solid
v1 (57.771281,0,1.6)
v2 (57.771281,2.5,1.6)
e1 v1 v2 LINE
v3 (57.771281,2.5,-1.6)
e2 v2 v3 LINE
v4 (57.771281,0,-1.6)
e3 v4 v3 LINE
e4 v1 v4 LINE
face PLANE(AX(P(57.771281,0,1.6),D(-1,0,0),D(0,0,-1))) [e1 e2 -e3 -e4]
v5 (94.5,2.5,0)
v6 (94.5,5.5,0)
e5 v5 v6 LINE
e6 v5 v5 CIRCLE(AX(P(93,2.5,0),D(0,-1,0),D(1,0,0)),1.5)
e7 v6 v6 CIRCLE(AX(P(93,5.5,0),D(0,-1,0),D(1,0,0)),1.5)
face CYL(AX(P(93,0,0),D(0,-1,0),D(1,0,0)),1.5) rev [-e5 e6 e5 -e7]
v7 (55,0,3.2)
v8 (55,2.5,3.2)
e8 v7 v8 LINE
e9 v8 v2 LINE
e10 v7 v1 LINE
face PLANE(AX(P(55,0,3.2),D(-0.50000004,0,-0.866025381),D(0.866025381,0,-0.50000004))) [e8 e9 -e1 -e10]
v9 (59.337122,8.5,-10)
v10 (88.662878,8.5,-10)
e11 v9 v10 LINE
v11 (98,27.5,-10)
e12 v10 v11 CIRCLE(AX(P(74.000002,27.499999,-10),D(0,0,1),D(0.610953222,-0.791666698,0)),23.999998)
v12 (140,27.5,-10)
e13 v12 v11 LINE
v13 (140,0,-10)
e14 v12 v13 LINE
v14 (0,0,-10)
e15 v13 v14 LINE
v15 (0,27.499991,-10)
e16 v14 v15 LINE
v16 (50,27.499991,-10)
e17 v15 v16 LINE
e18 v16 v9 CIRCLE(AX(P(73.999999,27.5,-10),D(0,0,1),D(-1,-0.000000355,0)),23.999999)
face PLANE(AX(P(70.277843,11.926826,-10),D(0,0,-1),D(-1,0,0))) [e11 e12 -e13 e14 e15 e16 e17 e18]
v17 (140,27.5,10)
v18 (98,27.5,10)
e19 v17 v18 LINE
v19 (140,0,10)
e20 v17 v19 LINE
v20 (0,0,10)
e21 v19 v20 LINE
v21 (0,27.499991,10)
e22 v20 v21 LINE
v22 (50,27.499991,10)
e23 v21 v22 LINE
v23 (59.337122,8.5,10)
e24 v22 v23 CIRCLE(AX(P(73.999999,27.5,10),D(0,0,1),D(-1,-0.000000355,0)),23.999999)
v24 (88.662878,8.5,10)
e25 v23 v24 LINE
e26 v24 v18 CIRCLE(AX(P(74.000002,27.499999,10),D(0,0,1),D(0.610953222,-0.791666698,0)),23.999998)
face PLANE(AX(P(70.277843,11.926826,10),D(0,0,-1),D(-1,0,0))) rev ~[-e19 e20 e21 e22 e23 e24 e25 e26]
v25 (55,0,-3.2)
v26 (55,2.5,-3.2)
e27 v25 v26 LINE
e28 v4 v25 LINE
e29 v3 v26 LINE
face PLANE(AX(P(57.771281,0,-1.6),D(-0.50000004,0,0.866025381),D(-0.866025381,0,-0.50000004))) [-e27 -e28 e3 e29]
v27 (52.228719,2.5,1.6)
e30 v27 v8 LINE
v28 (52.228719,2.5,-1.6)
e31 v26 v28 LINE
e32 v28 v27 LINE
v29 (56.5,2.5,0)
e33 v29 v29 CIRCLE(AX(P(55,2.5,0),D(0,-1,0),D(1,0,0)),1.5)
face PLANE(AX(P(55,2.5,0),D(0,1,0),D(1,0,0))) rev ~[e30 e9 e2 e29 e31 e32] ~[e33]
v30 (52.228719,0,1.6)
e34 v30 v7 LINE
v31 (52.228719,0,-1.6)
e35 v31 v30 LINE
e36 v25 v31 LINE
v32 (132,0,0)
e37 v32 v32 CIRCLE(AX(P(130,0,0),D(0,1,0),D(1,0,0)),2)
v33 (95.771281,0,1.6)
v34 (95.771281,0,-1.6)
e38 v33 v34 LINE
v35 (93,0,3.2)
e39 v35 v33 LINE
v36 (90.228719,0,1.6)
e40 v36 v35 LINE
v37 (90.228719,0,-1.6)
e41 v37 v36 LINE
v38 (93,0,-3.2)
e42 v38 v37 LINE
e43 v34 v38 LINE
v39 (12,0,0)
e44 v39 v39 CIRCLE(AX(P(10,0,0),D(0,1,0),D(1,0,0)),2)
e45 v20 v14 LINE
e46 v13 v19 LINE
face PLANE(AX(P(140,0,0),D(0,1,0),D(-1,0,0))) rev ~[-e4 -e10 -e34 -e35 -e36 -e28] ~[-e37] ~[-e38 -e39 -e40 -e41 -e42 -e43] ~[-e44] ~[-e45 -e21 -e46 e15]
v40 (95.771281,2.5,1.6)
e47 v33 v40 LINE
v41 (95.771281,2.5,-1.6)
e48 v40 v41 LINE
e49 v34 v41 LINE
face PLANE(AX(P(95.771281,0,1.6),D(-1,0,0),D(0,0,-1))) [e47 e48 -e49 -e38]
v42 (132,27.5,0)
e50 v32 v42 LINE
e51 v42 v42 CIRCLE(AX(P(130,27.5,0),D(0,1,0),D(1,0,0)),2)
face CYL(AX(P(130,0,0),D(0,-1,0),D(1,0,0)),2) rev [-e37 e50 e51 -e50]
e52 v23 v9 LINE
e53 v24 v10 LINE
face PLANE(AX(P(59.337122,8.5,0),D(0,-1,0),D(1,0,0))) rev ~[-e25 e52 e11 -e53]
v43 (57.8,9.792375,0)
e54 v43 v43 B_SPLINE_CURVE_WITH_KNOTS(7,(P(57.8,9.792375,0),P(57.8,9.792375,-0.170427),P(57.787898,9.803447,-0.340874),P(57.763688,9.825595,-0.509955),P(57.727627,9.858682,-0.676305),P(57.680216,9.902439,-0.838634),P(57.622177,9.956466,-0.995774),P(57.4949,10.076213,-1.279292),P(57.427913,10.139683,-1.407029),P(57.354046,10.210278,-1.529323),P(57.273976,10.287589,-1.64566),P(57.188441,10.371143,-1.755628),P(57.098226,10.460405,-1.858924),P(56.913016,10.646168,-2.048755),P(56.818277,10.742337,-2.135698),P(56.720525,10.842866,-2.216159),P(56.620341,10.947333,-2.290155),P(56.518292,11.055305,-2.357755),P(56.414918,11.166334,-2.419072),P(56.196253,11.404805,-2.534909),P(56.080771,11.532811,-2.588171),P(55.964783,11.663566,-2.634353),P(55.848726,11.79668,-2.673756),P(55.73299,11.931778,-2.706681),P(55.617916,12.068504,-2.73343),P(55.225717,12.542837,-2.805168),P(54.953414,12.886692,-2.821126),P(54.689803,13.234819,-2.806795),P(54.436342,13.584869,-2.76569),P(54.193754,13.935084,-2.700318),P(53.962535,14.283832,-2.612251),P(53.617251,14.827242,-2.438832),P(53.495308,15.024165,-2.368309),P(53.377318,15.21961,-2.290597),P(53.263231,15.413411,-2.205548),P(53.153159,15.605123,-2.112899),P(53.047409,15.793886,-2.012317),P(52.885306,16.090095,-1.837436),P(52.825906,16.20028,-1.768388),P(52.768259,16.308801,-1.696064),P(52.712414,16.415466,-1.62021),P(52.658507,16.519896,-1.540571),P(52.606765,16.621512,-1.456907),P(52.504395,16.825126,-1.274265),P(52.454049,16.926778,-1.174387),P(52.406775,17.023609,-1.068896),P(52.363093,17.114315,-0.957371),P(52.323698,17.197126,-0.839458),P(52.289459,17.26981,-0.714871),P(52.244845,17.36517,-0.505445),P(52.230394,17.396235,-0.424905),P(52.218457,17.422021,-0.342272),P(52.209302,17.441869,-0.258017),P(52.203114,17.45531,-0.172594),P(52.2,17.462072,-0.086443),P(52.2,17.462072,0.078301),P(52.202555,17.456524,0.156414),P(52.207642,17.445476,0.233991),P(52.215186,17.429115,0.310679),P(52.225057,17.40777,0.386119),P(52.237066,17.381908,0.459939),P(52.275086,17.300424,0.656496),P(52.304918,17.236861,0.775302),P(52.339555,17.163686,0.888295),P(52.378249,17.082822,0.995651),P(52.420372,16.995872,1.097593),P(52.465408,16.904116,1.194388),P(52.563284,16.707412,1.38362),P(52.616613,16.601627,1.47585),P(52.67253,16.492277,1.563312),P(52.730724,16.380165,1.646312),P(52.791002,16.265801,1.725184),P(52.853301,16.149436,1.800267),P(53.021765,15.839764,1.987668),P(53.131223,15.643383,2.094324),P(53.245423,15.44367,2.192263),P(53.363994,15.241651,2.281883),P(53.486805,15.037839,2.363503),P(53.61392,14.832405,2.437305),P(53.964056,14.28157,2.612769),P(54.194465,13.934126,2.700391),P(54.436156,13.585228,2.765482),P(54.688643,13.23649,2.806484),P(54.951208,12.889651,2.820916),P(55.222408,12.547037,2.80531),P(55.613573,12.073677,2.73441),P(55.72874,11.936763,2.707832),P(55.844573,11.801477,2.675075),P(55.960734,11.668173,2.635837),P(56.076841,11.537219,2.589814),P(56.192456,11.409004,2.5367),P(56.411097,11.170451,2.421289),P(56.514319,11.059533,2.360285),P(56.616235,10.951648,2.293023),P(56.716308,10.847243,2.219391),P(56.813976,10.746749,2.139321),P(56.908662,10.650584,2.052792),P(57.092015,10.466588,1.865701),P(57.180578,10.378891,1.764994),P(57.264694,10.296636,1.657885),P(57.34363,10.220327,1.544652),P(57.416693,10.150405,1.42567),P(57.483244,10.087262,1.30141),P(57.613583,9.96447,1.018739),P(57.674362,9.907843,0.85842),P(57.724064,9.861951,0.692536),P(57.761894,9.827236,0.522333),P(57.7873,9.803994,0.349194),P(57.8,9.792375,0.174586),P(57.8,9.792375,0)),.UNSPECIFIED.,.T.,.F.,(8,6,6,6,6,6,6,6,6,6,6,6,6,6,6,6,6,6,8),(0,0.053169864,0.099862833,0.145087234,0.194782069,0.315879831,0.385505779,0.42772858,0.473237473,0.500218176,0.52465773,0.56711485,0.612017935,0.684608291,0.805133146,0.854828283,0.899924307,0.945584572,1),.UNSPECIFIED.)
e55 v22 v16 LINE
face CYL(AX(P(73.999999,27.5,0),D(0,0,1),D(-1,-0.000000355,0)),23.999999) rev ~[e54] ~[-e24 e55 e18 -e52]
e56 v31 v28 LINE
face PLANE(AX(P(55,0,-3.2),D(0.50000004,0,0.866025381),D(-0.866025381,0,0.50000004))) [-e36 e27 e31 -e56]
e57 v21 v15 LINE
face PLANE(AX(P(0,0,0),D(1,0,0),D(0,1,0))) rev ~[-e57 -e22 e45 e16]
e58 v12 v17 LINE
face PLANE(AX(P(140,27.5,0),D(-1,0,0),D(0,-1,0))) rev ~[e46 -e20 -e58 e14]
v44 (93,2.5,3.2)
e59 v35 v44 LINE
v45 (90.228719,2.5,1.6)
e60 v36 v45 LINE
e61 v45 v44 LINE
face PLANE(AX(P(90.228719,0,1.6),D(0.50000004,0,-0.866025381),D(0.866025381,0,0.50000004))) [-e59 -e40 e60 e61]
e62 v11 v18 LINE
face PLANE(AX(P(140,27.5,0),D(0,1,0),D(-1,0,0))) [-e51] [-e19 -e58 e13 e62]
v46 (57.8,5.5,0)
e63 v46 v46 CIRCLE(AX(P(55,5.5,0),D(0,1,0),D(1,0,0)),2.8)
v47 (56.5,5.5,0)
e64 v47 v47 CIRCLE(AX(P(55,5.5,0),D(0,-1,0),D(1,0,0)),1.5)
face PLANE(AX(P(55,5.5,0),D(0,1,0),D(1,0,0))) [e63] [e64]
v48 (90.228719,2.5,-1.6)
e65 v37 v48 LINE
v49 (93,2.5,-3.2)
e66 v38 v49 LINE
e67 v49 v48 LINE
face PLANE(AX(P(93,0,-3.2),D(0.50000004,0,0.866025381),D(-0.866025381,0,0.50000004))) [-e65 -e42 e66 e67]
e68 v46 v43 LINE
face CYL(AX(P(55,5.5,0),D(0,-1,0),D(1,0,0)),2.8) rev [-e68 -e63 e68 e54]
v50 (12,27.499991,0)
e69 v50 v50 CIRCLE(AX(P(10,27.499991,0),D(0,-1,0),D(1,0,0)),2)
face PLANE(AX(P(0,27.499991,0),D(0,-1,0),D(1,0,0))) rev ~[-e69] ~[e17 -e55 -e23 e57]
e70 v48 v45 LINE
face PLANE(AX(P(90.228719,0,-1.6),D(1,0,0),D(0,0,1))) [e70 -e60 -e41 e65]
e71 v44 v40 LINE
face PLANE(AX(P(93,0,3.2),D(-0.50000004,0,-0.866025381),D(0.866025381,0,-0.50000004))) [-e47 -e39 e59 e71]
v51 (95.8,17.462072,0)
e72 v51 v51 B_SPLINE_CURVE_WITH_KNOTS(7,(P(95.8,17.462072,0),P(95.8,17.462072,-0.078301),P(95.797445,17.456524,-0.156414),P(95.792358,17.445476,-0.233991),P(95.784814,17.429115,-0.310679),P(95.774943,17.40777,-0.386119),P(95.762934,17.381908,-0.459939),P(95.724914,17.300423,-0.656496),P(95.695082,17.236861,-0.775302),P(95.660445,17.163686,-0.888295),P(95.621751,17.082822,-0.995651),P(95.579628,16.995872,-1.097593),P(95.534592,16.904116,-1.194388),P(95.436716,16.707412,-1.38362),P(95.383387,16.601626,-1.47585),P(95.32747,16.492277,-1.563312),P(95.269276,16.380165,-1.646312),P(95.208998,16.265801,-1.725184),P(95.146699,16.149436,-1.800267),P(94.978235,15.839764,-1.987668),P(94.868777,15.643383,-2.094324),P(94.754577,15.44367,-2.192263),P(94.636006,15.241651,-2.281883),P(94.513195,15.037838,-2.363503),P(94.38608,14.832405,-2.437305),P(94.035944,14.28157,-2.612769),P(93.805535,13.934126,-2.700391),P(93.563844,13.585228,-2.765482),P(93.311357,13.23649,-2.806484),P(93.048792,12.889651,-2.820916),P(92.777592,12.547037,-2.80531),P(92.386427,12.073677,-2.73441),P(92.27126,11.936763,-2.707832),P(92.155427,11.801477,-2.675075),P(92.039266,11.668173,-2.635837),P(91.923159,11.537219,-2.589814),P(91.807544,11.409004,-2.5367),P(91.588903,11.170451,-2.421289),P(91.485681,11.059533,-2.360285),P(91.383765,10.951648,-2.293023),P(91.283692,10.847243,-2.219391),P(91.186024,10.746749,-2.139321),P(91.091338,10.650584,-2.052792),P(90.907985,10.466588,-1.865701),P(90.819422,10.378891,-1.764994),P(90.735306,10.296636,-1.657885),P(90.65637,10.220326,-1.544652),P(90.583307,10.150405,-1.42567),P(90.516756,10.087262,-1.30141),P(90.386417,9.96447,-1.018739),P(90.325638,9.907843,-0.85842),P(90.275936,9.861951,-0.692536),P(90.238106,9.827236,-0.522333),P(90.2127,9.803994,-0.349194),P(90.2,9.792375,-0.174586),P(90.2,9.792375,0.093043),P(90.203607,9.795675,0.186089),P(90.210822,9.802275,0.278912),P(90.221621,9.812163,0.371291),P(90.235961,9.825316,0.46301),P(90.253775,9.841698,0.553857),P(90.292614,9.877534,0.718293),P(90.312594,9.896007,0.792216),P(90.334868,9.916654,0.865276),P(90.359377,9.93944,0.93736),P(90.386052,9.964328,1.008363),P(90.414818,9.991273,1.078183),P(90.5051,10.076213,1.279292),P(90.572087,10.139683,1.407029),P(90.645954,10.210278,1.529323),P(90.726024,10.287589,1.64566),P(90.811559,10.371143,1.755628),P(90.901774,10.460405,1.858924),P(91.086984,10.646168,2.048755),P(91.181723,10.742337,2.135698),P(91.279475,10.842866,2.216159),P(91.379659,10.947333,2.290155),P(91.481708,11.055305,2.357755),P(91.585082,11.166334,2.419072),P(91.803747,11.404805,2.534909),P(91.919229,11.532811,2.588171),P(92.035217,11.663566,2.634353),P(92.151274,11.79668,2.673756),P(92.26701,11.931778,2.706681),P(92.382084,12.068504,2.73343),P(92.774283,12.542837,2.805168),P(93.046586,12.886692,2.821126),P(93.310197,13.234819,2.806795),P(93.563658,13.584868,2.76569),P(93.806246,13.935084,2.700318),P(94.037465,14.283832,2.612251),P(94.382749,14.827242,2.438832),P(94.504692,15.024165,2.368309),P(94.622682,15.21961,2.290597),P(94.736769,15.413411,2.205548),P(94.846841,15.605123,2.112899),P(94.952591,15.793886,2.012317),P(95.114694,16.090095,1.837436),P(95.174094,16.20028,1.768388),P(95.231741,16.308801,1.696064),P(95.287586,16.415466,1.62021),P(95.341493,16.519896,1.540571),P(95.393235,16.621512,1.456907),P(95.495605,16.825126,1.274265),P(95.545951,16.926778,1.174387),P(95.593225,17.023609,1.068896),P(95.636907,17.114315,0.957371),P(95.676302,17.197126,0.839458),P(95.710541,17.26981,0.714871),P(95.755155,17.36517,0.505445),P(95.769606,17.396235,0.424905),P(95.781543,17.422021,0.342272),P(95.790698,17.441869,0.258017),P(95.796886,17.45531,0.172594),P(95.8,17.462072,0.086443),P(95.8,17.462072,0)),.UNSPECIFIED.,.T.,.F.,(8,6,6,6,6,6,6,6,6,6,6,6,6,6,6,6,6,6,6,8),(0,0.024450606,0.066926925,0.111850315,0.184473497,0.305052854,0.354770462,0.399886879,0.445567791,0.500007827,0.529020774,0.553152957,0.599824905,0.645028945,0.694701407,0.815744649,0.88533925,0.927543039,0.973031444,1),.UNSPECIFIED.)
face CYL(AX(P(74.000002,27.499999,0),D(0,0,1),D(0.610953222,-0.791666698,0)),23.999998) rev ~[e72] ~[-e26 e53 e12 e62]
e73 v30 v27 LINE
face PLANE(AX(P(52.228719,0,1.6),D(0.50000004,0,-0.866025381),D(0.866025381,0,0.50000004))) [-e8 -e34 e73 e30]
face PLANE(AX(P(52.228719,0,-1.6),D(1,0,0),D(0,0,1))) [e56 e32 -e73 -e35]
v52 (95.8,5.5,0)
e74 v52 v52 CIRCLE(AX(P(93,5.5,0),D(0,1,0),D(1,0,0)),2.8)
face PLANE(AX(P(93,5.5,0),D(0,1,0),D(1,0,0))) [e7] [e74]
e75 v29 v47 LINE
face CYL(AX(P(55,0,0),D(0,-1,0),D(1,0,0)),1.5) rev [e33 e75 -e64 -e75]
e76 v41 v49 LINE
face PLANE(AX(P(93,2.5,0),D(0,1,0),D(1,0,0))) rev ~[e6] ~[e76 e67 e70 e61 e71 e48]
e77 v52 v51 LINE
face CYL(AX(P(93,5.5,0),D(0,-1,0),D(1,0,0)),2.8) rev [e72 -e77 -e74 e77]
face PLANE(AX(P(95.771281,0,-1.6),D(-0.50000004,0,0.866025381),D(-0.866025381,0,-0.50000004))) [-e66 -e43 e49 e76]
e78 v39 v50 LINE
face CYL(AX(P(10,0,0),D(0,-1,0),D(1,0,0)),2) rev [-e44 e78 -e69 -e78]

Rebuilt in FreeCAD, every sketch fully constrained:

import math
import FreeCAD as App
import Part
import Sketcher
Q = App.Units.Quantity


def add_polygon(sketch, points):
    """Adds a closed chain of lines whose ends are joined by coincident constraints."""
    first, n = sketch.GeometryCount, len(points)
    for a, b in zip(points, points[1:] + points[:1]):
        sketch.addGeometry(Part.LineSegment(App.Vector(*a, 0), App.Vector(*b, 0)), False)
    for i in range(n):
        sketch.addConstraint(Sketcher.Constraint("Coincident", first + i, 2, first + (i + 1) % n, 1))

doc = App.newDocument("Part")
body = doc.addObject("PartDesign::Body", "Body")

# Sketch on XY plane
sketch1 = body.newObject("Sketcher::SketchObject", "Sketch")
sketch1.AttachmentSupport = (doc.getObject("XY_Plane"), [""])
sketch1.MapMode = "FlatFace"
add_polygon(sketch1, [(0, -3.2), (2.8, -1.6), (2.8, 1.6), (0, 3.2), (-2.8, 1.6), (-2.8, -1.6)])  # lines 0-5
sketch1.addConstraint(Sketcher.Constraint("Vertical", 1))
sketch1.addConstraint(Sketcher.Constraint("Vertical", 4))
sketch1.addConstraint(Sketcher.Constraint("Symmetric", 0, 2, 3, 2, -1, 1))
sketch1.addConstraint(Sketcher.Constraint("Symmetric", 2, 2, 5, 2, -1, 1))
sketch1.addConstraint(Sketcher.Constraint("PointOnObject", 2, 2, -2))
sketch1.addConstraint(Sketcher.Constraint("Parallel", 2, 5))
sketch1.addConstraint(Sketcher.Constraint("Horizontal", 1, 2, 3, 2))
sketch1.addConstraint(Sketcher.Constraint("Angle", 0, Q("30.000003 deg")))
sketch1.addConstraint(Sketcher.Constraint("DistanceY", 1, 1, 1, 2, 3.2))
sketch1.addConstraint(Sketcher.Constraint("Distance", 0, 3.2))
pad1 = body.newObject("PartDesign::Pad", "Pad")
pad1.Profile = sketch1
pad1.Length = 2.5
body2 = doc.addObject("PartDesign::Body", "Body001")

# Sketch on XY plane
sketch2 = body2.newObject("Sketcher::SketchObject", "Sketch001")
sketch2.AttachmentSupport = (doc.getObject("XY_Plane001"), [""])
sketch2.MapMode = "FlatFace"
sketch2.AttachmentOffset = App.Placement(App.Vector(0, 0, 5.5), App.Rotation())
sketch2.addGeometry(Part.Circle(App.Vector(0, 0, 0), App.Vector(0, 0, 1), 2.8), False)
sketch2.addConstraint(Sketcher.Constraint("Coincident", 0, 3, -1, 1))
sketch2.addConstraint(Sketcher.Constraint("Diameter", 0, 5.6))
pad2 = body2.newObject("PartDesign::Pad", "Pad001")
pad2.Profile = sketch2
pad2.Length = 15
body3 = doc.addObject("PartDesign::Body", "Body002")

# Sketch on XY plane
sketch3 = body3.newObject("Sketcher::SketchObject", "Sketch002")
sketch3.AttachmentSupport = (doc.getObject("XY_Plane002"), [""])
sketch3.MapMode = "FlatFace"
sketch3.addGeometry(Part.Circle(App.Vector(0, 0, 0), App.Vector(0, 0, 1), 1.5), False)
sketch3.addConstraint(Sketcher.Constraint("Coincident", 0, 3, -1, 1))
sketch3.addConstraint(Sketcher.Constraint("Diameter", 0, 3.0))
pad3 = body3.newObject("PartDesign::Pad", "Pad002")
pad3.Profile = sketch3
pad3.Length = 8.5
doc.recompute()

boolean = body3.newObject("PartDesign::Boolean", "Boolean")
boolean.Type = "Fuse"
boolean.addObjects([body])
doc.recompute()

boolean2 = body3.newObject("PartDesign::Boolean", "Boolean001")
boolean2.Type = "Fuse"
boolean2.addObjects([body2])
body4 = doc.addObject("PartDesign::Body", "Body003")
doc.recompute()

body3.Placement = App.Placement(App.Vector(93, 0, 0), App.Rotation(App.Vector(-1, 0, 0), 90))
boolean3 = body4.newObject("PartDesign::Boolean", "Boolean002")
boolean3.Type = "Fuse"
boolean3.addObjects([body3])
body5 = doc.addObject("PartDesign::Body", "Body004")

# Sketch on XY plane
sketch4 = body5.newObject("Sketcher::SketchObject", "Sketch003")
sketch4.AttachmentSupport = (doc.getObject("XY_Plane004"), [""])
sketch4.MapMode = "FlatFace"
add_polygon(sketch4, [(0, -3.2), (2.8, -1.6), (2.8, 1.6), (0, 3.2), (-2.8, 1.6), (-2.8, -1.6)])  # lines 0-5
sketch4.addConstraint(Sketcher.Constraint("Vertical", 1))
sketch4.addConstraint(Sketcher.Constraint("Vertical", 4))
sketch4.addConstraint(Sketcher.Constraint("Symmetric", 0, 2, 3, 2, -1, 1))
sketch4.addConstraint(Sketcher.Constraint("Symmetric", 2, 2, 5, 2, -1, 1))
sketch4.addConstraint(Sketcher.Constraint("PointOnObject", 2, 2, -2))
sketch4.addConstraint(Sketcher.Constraint("Parallel", 2, 5))
sketch4.addConstraint(Sketcher.Constraint("Horizontal", 1, 2, 3, 2))
sketch4.addConstraint(Sketcher.Constraint("Angle", 0, Q("30.000003 deg")))
sketch4.addConstraint(Sketcher.Constraint("DistanceY", 1, 1, 1, 2, 3.2))
sketch4.addConstraint(Sketcher.Constraint("Distance", 0, 3.2))
pad4 = body5.newObject("PartDesign::Pad", "Pad003")
pad4.Profile = sketch4
pad4.Length = 2.5
body6 = doc.addObject("PartDesign::Body", "Body005")

# Sketch on XY plane
sketch5 = body6.newObject("Sketcher::SketchObject", "Sketch004")
sketch5.AttachmentSupport = (doc.getObject("XY_Plane005"), [""])
sketch5.MapMode = "FlatFace"
sketch5.AttachmentOffset = App.Placement(App.Vector(0, 0, 5.5), App.Rotation())
sketch5.addGeometry(Part.Circle(App.Vector(0, 0, 0), App.Vector(0, 0, 1), 2.8), False)
sketch5.addConstraint(Sketcher.Constraint("Coincident", 0, 3, -1, 1))
sketch5.addConstraint(Sketcher.Constraint("Diameter", 0, 5.6))
pad5 = body6.newObject("PartDesign::Pad", "Pad004")
pad5.Profile = sketch5
pad5.Length = 15
body7 = doc.addObject("PartDesign::Body", "Body006")

# Sketch on XY plane
sketch6 = body7.newObject("Sketcher::SketchObject", "Sketch005")
sketch6.AttachmentSupport = (doc.getObject("XY_Plane006"), [""])
sketch6.MapMode = "FlatFace"
sketch6.addGeometry(Part.Circle(App.Vector(0, 0, 0), App.Vector(0, 0, 1), 1.5), False)
sketch6.addConstraint(Sketcher.Constraint("Coincident", 0, 3, -1, 1))
sketch6.addConstraint(Sketcher.Constraint("Diameter", 0, 3.0))
pad6 = body7.newObject("PartDesign::Pad", "Pad005")
pad6.Profile = sketch6
pad6.Length = 8.5
doc.recompute()

boolean4 = body7.newObject("PartDesign::Boolean", "Boolean003")
boolean4.Type = "Fuse"
boolean4.addObjects([body5])
doc.recompute()

boolean5 = body7.newObject("PartDesign::Boolean", "Boolean004")
boolean5.Type = "Fuse"
boolean5.addObjects([body6])
body8 = doc.addObject("PartDesign::Body", "Body007")
body8.AllowCompound = True
doc.recompute()

body7.Placement = App.Placement(App.Vector(55, 0, 0), App.Rotation(App.Vector(-1, 0, 0), 90))
boolean6 = body8.newObject("PartDesign::Boolean", "Boolean005")
boolean6.Type = "Fuse"
boolean6.addObjects([body7])
doc.recompute()

boolean7 = body8.newObject("PartDesign::Boolean", "Boolean006")
boolean7.Type = "Fuse"
boolean7.addObjects([body4])
body9 = doc.addObject("PartDesign::Body", "Body008")

# Sketch on XZ plane
sketch7 = body9.newObject("Sketcher::SketchObject", "Sketch006")
sketch7.AttachmentSupport = (doc.getObject("XZ_Plane008"), [""])
sketch7.MapMode = "FlatFace"
sketch7.addGeometry(Part.Circle(App.Vector(130, 0, 0), App.Vector(0, 0, 1), 2), False)
sketch7.addConstraint(Sketcher.Constraint("PointOnObject", 0, 3, -1))
sketch7.addConstraint(Sketcher.Constraint("Diameter", 0, 4.0))
sketch7.addConstraint(Sketcher.Constraint("DistanceX", -1, 1, 0, 3, 130.0))
pad7 = body9.newObject("PartDesign::Pad", "Pad006")
pad7.Profile = sketch7
pad7.Length = 27.5
pad7.Reversed = True
body10 = doc.addObject("PartDesign::Body", "Body009")
body10.AllowCompound = True

# Sketch on XZ plane
sketch8 = body10.newObject("Sketcher::SketchObject", "Sketch007")
sketch8.AttachmentSupport = (doc.getObject("XZ_Plane009"), [""])
sketch8.MapMode = "FlatFace"
sketch8.addGeometry(Part.Circle(App.Vector(10, 0, 0), App.Vector(0, 0, 1), 2), False)
sketch8.addConstraint(Sketcher.Constraint("PointOnObject", 0, 3, -1))
sketch8.addConstraint(Sketcher.Constraint("Diameter", 0, 4.0))
sketch8.addConstraint(Sketcher.Constraint("DistanceX", -1, 1, 0, 3, 10.0))
pad8 = body10.newObject("PartDesign::Pad", "Pad007")
pad8.Profile = sketch8
pad8.Length = 27.5
pad8.Reversed = True
doc.recompute()

boolean8 = body10.newObject("PartDesign::Boolean", "Boolean007")
boolean8.Type = "Fuse"
boolean8.addObjects([body9])
body11 = doc.addObject("PartDesign::Body", "Body010")

# Sketch on XY plane
sketch9 = body11.newObject("Sketcher::SketchObject", "Sketch008")
sketch9.AttachmentSupport = (doc.getObject("XY_Plane010"), [""])
sketch9.MapMode = "FlatFace"
sketch9.addGeometry(Part.LineSegment(App.Vector(0, 0, 0), App.Vector(140, 0, 0)), False)
sketch9.addGeometry(Part.LineSegment(App.Vector(140, 0, 0), App.Vector(140, 28, 0)), False)
sketch9.addGeometry(Part.LineSegment(App.Vector(140, 28, 0), App.Vector(98, 28, 0)), False)
sketch9.addGeometry(Part.ArcOfCircle(Part.Circle(App.Vector(74, 27, 0), App.Vector(0, 0, 1), 24), math.radians(-52), math.radians(0)), False)
sketch9.addGeometry(Part.LineSegment(App.Vector(89, 8, 0), App.Vector(59, 8, 0)), False)
sketch9.addGeometry(Part.ArcOfCircle(Part.Circle(App.Vector(74, 27, 0), App.Vector(0, 0, 1), 24), math.radians(-180), math.radians(-128)), False)
sketch9.addGeometry(Part.LineSegment(App.Vector(50, 27, 0), App.Vector(0, 27, 0)), False)
sketch9.addGeometry(Part.LineSegment(App.Vector(0, 27, 0), App.Vector(0, 0, 0)), False)
sketch9.addConstraint(Sketcher.Constraint("Coincident", 0, 2, 1, 1))
sketch9.addConstraint(Sketcher.Constraint("Coincident", 1, 2, 2, 1))
sketch9.addConstraint(Sketcher.Constraint("Coincident", 2, 2, 3, 2))
sketch9.addConstraint(Sketcher.Constraint("Coincident", 3, 1, 4, 1))
sketch9.addConstraint(Sketcher.Constraint("Coincident", 4, 2, 5, 2))
sketch9.addConstraint(Sketcher.Constraint("Coincident", 5, 1, 6, 1))
sketch9.addConstraint(Sketcher.Constraint("Coincident", 6, 2, 7, 1))
sketch9.addConstraint(Sketcher.Constraint("Coincident", 7, 2, 0, 1))
sketch9.addConstraint(Sketcher.Constraint("Horizontal", 0))
sketch9.addConstraint(Sketcher.Constraint("Vertical", 1))
sketch9.addConstraint(Sketcher.Constraint("Horizontal", 2))
sketch9.addConstraint(Sketcher.Constraint("Horizontal", 4))
sketch9.addConstraint(Sketcher.Constraint("Horizontal", 6))
sketch9.addConstraint(Sketcher.Constraint("Vertical", 7))
sketch9.addConstraint(Sketcher.Constraint("Coincident", 7, 2, -1, 1))
sketch9.addConstraint(Sketcher.Constraint("Coincident", 5, 3, 3, 3))
sketch9.addConstraint(Sketcher.Constraint("Equal", 3, 5))
sketch9.addConstraint(Sketcher.Constraint("Horizontal", 5, 3, 1, 2))
sketch9.addConstraint(Sketcher.Constraint("Radius", 3, 23.999998))
sketch9.addConstraint(Sketcher.Constraint("DistanceX", 0, 1, 0, 2, 140.0))
sketch9.addConstraint(Sketcher.Constraint("DistanceX", 2, 2, 2, 1, 42.0))
sketch9.addConstraint(Sketcher.Constraint("DistanceY", 1, 1, 1, 2, 27.5))
sketch9.addConstraint(Sketcher.Constraint("DistanceY", 3, 1, 2, 2, 19.0))
sketch9.addConstraint(Sketcher.Constraint("DistanceY", 7, 2, 7, 1, 27.499991))
pad9 = body11.newObject("PartDesign::Pad", "Pad008")
pad9.Profile = sketch9
pad9.Length = 20
pad9.Midplane = True
doc.recompute()

boolean9 = body11.newObject("PartDesign::Boolean", "Boolean008")
boolean9.Type = "Cut"
boolean9.addObjects([body10])
doc.recompute()

boolean10 = body11.newObject("PartDesign::Boolean", "Boolean009")
boolean10.Type = "Cut"
boolean10.addObjects([body8])

doc.recompute()
